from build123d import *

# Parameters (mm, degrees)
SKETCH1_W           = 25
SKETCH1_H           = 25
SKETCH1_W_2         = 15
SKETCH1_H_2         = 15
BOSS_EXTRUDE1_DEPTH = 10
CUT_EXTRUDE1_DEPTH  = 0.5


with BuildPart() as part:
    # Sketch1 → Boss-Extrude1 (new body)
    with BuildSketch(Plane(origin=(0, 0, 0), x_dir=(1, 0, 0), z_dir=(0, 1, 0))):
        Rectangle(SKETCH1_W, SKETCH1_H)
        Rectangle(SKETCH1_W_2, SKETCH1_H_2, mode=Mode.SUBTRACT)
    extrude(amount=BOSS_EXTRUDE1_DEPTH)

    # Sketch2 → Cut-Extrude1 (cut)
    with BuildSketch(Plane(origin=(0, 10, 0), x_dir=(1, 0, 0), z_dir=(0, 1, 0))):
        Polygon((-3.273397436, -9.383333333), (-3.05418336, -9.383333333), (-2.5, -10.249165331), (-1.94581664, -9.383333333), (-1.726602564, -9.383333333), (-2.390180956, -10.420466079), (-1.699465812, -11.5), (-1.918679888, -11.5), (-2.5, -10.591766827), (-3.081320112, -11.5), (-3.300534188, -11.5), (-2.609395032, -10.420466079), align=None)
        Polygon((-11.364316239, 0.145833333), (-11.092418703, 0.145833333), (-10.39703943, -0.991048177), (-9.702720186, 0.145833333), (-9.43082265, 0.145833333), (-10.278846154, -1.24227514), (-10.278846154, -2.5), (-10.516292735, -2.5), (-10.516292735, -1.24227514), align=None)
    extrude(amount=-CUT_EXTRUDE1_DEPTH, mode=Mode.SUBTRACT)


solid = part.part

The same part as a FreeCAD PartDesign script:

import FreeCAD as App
import Part
import Sketcher
from FreeCAD import Vector
Q = App.Units.Quantity


def add_polygon(sketch, points):
    """Adds a closed chain of lines whose ends are joined by coincident constraints."""
    first, n = sketch.GeometryCount, len(points)
    for a, b in zip(points, points[1:] + points[:1]):
        sketch.addGeometry(Part.LineSegment(App.Vector(*a, 0), App.Vector(*b, 0)), False)
    for i in range(n):
        sketch.addConstraint(Sketcher.Constraint("Coincident", first + i, 2, first + (i + 1) % n, 1))

doc = App.newDocument("Part")
params = doc.addObject("Spreadsheet::Sheet", "Params")
for row, (alias, value) in enumerate([
    ("sketch1_width", "25 mm"),
    ("sketch1_width2", "15 mm"),
    ("pad1_length", "10 mm"),
    ("pocket1_length", "0.5 mm"),
], start=1):
    params.set(f"A{row}", alias)
    params.set(f"B{row}", "=" + value)
    params.setAlias(f"B{row}", alias)

body = doc.addObject("PartDesign::Body", "Body")

# Sketch on XZ plane
sketch1 = body.newObject("Sketcher::SketchObject", "Sketch")
sketch1.AttachmentSupport = (doc.getObject("XZ_Plane"), [""])
sketch1.MapMode = "FlatFace"
add_polygon(sketch1, [(-12, -12), (-12, 12), (12, 12), (12, -12)])  # lines 0-3
add_polygon(sketch1, [(8, 8), (-8, 8), (-8, -8), (8, -8)])  # lines 4-7
sketch1.addConstraint([
    Sketcher.Constraint("Vertical", 0),
    Sketcher.Constraint("Horizontal", 1),
    Sketcher.Constraint("Vertical", 2),
    Sketcher.Constraint("Horizontal", 3),
    Sketcher.Constraint("Horizontal", 4),
    Sketcher.Constraint("Vertical", 5),
    Sketcher.Constraint("Horizontal", 6),
    Sketcher.Constraint("Vertical", 7),
    Sketcher.Constraint("Symmetric", 0, 2, 2, 2, -1, 1),
    Sketcher.Constraint("Symmetric", 4, 2, 6, 2, -1, 1),
    Sketcher.Constraint("Equal", 3, 0),
    Sketcher.Constraint("Equal", 6, 5),
    Sketcher.Constraint("DistanceX", 1, 1, 1, 2, Q("25 mm")),
    Sketcher.Constraint("DistanceX", 4, 2, 4, 1, Q("15 mm")),
])
sketch1.setExpression("Constraints[20]", "Params.sketch1_width")
sketch1.setExpression("Constraints[21]", "Params.sketch1_width2")
pad1 = body.newObject("PartDesign::Pad", "Pad")
pad1.Profile = sketch1
pad1.setExpression("Length", "Params.pad1_length")
pad1.Reversed = True

# Sketch on XZ plane
sketch2 = body.newObject("Sketcher::SketchObject", "Sketch001")
sketch2.AttachmentSupport = (doc.getObject("XZ_Plane"), [""])
sketch2.MapMode = "FlatFace"
sketch2.AttachmentOffset = App.Placement(Vector(0, 0, -10), App.Rotation())
add_polygon(sketch2, [(-3.05, 9.38), (-3.27, 9.38), (-2.61, 10.42), (-3.3, 11.5), (-3.08, 11.5), (-2.5, 10.59), (-1.92, 11.5), (-1.7, 11.5), (-2.39, 10.42), (-1.73, 9.38), (-1.95, 9.38), (-2.5, 10.25)])  # lines 0-11
add_polygon(sketch2, [(-11.09, -0.15), (-11.36, -0.15), (-10.52, 1.24), (-10.52, 2.5), (-10.28, 2.5), (-10.28, 1.24), (-9.43, -0.15), (-9.7, -0.15), (-10.4, 0.99)])  # lines 12-20
sketch2.addConstraint([
    Sketcher.Constraint("Horizontal", 0),
    Sketcher.Constraint("Horizontal", 3),
    Sketcher.Constraint("Horizontal", 6),
    Sketcher.Constraint("Horizontal", 9),
    Sketcher.Constraint("Horizontal", 12),
    Sketcher.Constraint("Vertical", 14),
    Sketcher.Constraint("Horizontal", 15),
    Sketcher.Constraint("Vertical", 16),
    Sketcher.Constraint("Horizontal", 18),
    Sketcher.Constraint("Parallel", 4, 10),
    Sketcher.Constraint("Parallel", 5, 11),
    Sketcher.Constraint("Horizontal", 3, 2, 5, 2),
    Sketcher.Constraint("Horizontal", 1, 2, 7, 2),
    Sketcher.Constraint("Horizontal", 0, 2, 8, 2),
    Sketcher.Constraint("Horizontal", 13, 2, 16, 2),
    Sketcher.Constraint("Horizontal", 12, 2, 17, 2),
    Sketcher.Constraint("Vertical", 4, 2, 10, 2),
    Sketcher.Constraint("Equal", 0, 3),
    Sketcher.Constraint("Equal", 3, 6),
    Sketcher.Constraint("Equal", 6, 9),
    Sketcher.Constraint("Equal", 12, 18),
    Sketcher.Constraint("Equal", 4, 5),
    Sketcher.Constraint("Equal", 13, 17),
    Sketcher.Constraint("DistanceY", -1, 1, 2, 2, Q("11.5 mm")),
    Sketcher.Constraint("DistanceX", 4, 2, -1, 1, Q("2.5 mm")),
    Sketcher.Constraint("DistanceY", -1, 1, 14, 2, Q("2.5 mm")),
    Sketcher.Constraint("Distance", 10, Q("1.028 mm")),
    Sketcher.Constraint("DistanceY", 12, 2, 10, 2, Q("10.394999 mm")),
    Sketcher.Constraint("DistanceY", 1, 2, 4, 2, Q("0.171301 mm")),
    Sketcher.Constraint("DistanceX", 7, 2, 5, 2, Q("0.471501 mm")),
    Sketcher.Constraint("DistanceY", 10, 2, 1, 2, Q("0.171301 mm")),
    Sketcher.Constraint("DistanceX", 12, 2, 9, 2, Q("9.4185 mm")),
    Sketcher.Constraint("DistanceX", 20, 2, 18, 2, Q("1.389699 mm")),
    Sketcher.Constraint("Distance", 1, Q("1.23148 mm")),
    Sketcher.Constraint("Distance", 2, Q("1.281822 mm")),
    Sketcher.Constraint("Distance", 8, Q("1.231252 mm")),
    Sketcher.Constraint("Distance", 13, Q("1.62665 mm")),
    Sketcher.Constraint("DistanceX", 0, 2, 0, 1, Q("0.219214 mm")),
    Sketcher.Constraint("DistanceX", 12, 2, 12, 1, Q("0.271898 mm")),
    Sketcher.Constraint("DistanceX", 15, 1, 15, 2, Q("0.237447 mm")),
    Sketcher.Constraint("DistanceX", 19, 2, -1, 1, Q("10.397039 mm")),
    Sketcher.Constraint("DistanceY", -1, 1, 19, 2, Q("0.991048 mm")),
])
pocket1 = body.newObject("PartDesign::Pocket", "Pocket")
pocket1.Profile = sketch2
pocket1.setExpression("Length", "Params.pocket1_length")
pocket1.Reversed = True

doc.recompute()
